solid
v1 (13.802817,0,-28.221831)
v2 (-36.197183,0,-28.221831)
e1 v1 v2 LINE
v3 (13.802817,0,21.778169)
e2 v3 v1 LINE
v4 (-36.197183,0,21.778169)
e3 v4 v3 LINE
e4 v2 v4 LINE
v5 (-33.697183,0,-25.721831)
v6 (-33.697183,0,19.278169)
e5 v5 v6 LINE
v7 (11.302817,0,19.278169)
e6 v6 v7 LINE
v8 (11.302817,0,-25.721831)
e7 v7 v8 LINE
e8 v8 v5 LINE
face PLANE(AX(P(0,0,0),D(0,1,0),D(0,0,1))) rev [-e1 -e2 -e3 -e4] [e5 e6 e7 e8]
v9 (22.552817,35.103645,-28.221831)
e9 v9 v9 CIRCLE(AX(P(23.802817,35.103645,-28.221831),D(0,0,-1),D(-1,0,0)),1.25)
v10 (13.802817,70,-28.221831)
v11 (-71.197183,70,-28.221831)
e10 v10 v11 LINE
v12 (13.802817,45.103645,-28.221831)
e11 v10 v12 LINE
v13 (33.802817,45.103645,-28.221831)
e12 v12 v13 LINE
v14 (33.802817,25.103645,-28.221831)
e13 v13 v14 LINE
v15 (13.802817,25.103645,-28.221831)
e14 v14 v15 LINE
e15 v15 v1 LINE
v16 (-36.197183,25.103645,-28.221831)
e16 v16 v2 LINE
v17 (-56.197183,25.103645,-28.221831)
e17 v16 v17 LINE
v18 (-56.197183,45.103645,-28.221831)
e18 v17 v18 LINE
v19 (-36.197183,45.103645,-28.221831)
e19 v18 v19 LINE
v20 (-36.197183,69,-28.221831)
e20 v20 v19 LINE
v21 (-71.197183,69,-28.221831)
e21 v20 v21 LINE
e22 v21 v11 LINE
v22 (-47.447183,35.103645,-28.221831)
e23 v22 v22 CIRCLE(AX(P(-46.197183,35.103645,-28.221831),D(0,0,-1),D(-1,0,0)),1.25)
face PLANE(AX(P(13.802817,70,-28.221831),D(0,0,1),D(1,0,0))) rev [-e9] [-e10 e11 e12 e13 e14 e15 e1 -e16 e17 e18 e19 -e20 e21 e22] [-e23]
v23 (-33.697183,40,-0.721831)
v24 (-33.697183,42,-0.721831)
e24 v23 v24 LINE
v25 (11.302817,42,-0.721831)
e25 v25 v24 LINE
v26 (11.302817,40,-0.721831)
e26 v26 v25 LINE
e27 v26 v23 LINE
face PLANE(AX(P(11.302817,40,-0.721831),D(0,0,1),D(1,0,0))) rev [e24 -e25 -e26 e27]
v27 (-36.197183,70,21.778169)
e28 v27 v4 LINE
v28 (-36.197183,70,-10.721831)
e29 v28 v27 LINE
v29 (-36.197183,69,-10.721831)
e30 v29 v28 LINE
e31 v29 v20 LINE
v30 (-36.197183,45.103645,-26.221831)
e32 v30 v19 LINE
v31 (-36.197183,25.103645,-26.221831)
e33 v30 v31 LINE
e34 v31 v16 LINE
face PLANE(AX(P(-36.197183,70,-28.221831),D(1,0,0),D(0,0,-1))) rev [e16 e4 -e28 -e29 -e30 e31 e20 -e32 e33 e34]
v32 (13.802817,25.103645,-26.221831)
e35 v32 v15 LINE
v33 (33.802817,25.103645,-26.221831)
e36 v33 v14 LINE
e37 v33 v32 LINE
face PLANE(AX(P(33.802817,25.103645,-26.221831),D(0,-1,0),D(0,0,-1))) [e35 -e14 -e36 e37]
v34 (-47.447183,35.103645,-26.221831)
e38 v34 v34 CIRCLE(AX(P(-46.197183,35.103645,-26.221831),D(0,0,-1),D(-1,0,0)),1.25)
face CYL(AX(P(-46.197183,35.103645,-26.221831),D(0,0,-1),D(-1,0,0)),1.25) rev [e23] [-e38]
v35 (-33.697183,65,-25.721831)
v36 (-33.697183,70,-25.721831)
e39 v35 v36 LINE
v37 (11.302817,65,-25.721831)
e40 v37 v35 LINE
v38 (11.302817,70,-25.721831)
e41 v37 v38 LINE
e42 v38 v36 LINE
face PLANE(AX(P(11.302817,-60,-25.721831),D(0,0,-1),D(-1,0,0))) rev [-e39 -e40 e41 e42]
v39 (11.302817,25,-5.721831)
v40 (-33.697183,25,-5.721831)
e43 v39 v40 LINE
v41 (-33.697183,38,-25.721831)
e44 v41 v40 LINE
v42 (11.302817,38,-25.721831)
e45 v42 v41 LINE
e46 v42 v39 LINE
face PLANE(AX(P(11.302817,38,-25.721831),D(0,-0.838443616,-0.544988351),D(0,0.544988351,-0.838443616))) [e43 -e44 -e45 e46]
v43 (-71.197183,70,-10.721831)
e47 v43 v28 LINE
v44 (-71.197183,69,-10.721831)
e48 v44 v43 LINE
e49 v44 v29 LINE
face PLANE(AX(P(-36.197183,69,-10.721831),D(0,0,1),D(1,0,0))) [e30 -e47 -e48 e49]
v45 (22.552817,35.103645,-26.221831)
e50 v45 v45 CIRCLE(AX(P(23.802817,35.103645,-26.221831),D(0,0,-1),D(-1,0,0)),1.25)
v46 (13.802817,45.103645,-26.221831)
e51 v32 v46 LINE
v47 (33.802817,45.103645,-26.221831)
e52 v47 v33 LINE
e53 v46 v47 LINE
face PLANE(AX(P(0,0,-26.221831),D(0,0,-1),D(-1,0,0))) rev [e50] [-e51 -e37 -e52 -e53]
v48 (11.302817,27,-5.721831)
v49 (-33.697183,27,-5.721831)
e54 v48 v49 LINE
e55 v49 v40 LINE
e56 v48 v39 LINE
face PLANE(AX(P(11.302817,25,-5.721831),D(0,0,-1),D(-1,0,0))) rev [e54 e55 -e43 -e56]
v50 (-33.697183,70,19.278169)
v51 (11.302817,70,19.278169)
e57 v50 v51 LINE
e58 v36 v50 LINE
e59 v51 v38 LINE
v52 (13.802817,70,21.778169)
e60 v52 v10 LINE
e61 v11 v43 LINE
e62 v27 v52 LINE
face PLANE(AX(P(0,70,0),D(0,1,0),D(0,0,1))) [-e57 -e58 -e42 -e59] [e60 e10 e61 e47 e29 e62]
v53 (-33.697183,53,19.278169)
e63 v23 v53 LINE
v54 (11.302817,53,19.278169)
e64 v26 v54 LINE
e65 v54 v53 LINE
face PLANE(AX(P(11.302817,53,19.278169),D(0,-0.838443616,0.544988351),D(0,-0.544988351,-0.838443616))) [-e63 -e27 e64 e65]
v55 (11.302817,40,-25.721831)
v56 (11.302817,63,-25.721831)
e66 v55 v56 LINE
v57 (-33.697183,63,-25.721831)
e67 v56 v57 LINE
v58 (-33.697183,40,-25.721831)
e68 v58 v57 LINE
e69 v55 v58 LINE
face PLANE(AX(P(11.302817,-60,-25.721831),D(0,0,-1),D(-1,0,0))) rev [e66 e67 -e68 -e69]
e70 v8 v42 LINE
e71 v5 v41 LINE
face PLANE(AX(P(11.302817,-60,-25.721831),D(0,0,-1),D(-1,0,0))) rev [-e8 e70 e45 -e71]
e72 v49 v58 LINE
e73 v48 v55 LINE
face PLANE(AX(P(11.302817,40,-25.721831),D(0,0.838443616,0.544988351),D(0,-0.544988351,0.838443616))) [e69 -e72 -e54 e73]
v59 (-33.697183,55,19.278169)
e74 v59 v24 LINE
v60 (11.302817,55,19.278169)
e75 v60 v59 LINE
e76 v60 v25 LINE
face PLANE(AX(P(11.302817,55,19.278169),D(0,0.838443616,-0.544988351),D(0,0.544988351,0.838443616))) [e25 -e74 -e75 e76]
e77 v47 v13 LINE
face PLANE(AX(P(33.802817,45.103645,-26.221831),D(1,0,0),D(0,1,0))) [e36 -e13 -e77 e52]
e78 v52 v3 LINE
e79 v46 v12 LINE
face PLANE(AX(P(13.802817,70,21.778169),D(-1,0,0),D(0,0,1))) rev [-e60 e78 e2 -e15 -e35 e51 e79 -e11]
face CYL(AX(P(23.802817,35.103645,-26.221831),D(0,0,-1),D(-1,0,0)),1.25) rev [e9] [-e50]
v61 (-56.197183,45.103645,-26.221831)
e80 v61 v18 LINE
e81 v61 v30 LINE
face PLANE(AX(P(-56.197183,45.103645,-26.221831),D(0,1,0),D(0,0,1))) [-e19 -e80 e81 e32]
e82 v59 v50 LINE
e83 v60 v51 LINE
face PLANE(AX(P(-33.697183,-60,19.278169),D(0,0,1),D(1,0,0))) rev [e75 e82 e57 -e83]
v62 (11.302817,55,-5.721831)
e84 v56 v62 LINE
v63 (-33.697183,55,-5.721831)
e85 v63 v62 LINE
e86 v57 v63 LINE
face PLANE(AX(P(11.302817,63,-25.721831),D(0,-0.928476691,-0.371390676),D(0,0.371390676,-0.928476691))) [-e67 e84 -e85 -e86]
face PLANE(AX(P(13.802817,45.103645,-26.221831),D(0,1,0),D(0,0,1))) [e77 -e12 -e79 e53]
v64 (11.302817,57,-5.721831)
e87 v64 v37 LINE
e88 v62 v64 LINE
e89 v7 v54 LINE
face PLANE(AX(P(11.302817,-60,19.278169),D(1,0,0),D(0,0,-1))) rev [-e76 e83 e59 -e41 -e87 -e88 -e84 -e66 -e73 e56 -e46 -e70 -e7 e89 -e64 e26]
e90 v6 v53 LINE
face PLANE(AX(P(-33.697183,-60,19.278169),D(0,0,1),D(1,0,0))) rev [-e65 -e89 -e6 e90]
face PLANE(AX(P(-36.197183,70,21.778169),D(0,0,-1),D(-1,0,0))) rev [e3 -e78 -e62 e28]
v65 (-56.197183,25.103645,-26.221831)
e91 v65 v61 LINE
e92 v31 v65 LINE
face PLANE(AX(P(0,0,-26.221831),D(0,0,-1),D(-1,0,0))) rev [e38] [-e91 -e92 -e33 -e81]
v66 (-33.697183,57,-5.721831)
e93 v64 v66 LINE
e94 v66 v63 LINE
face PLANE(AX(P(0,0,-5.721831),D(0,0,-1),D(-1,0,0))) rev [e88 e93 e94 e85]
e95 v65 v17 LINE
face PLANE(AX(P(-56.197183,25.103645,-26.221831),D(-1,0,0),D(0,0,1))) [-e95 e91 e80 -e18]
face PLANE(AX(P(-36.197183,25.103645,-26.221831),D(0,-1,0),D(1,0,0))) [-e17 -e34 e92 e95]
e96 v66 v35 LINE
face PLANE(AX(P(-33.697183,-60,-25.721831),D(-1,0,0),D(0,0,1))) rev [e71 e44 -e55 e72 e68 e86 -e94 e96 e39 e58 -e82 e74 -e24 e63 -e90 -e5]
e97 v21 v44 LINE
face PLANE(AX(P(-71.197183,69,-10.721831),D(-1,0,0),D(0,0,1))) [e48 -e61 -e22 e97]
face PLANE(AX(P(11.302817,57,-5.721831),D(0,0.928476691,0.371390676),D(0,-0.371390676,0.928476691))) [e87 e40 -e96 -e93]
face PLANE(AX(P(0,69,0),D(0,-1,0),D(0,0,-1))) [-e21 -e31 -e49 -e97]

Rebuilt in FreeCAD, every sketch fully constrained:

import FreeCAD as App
import Part
import Sketcher


def add_polygon(sketch, points):
    """Adds a closed chain of lines whose ends are joined by coincident constraints."""
    first, n = sketch.GeometryCount, len(points)
    for a, b in zip(points, points[1:] + points[:1]):
        sketch.addGeometry(Part.LineSegment(App.Vector(*a, 0), App.Vector(*b, 0)), False)
    for i in range(n):
        sketch.addConstraint(Sketcher.Constraint("Coincident", first + i, 2, first + (i + 1) % n, 1))

doc = App.newDocument("Part")
body = doc.addObject("PartDesign::Body", "Body")

sketch1 = doc.addObject("Sketcher::SketchObject", "Sketch")
body.addObject(sketch1)
sketch1.AttachmentSupport = (doc.XZ_Plane, [""])
sketch1.MapMode = "FlatFace"
add_polygon(sketch1, [(-36.197183, -28.221831), (-36.197183, 21.778169), (13.802817, 21.778169), (13.802817, -28.221831)])
sketch1.addConstraint(Sketcher.Constraint("Vertical", 0))
sketch1.addConstraint(Sketcher.Constraint("Horizontal", 1))
sketch1.addConstraint(Sketcher.Constraint("Vertical", 2))
sketch1.addConstraint(Sketcher.Constraint("Horizontal", 3))
sketch1.addConstraint(Sketcher.Constraint("Equal", 3, 0))
sketch1.addConstraint(Sketcher.Constraint("DistanceX", 1, 1, 1, 2, 50.0))
sketch1.addConstraint(Sketcher.Constraint("DistanceY", -1, 1, 0, 2, 21.778169))
sketch1.addConstraint(Sketcher.Constraint("DistanceX", 0, 2, -1, 1, 36.197183))
pad1 = doc.addObject("PartDesign::Pad", "Pad")
body.addObject(pad1)
pad1.Profile = sketch1
pad1.Length = 70
pad1.Reversed = True

sketch2 = doc.addObject("Sketcher::SketchObject", "Sketch001")
body.addObject(sketch2)
sketch2.AttachmentSupport = (doc.XZ_Plane, [""])
sketch2.MapMode = "FlatFace"
sketch2.AttachmentOffset = App.Placement(App.Vector(0, 0, -70), App.Rotation())
add_polygon(sketch2, [(-33.697183, -25.721831), (-33.697183, 19.278169), (11.302817, 19.278169), (11.302817, -25.721831)])
sketch2.addConstraint(Sketcher.Constraint("Vertical", 0))
sketch2.addConstraint(Sketcher.Constraint("Horizontal", 1))
sketch2.addConstraint(Sketcher.Constraint("Vertical", 2))
sketch2.addConstraint(Sketcher.Constraint("Horizontal", 3))
sketch2.addConstraint(Sketcher.Constraint("Equal", 3, 0))
sketch2.addConstraint(Sketcher.Constraint("DistanceX", 1, 1, 1, 2, 45.0))
sketch2.addConstraint(Sketcher.Constraint("DistanceY", -1, 1, 0, 2, 19.278169))
sketch2.addConstraint(Sketcher.Constraint("DistanceX", 0, 2, -1, 1, 33.697183))
pocket1 = doc.addObject("PartDesign::Pocket", "Pocket")
body.addObject(pocket1)
pocket1.Profile = sketch2
pocket1.Length = 130
pocket1.Reversed = True

sketch3 = doc.addObject("Sketcher::SketchObject", "Sketch002")
body.addObject(sketch3)
sketch3.AttachmentSupport = (doc.XY_Plane, [""])
sketch3.MapMode = "FlatFace"
sketch3.AttachmentOffset = App.Placement(App.Vector(0, 0, -25.721831), App.Rotation())
add_polygon(sketch3, [(-33.697183, 65), (-33.697183, 55), (11.302817, 55), (11.302817, 65)])
sketch3.addConstraint(Sketcher.Constraint("Vertical", 0))
sketch3.addConstraint(Sketcher.Constraint("Horizontal", 1))
sketch3.addConstraint(Sketcher.Constraint("Vertical", 2))
sketch3.addConstraint(Sketcher.Constraint("Horizontal", 3))
sketch3.addConstraint(Sketcher.Constraint("DistanceX", 1, 1, 1, 2, 45.0))
sketch3.addConstraint(Sketcher.Constraint("DistanceY", 0, 2, 0, 1, 10.0))
sketch3.addConstraint(Sketcher.Constraint("DistanceY", -1, 1, 0, 2, 55.0))
sketch3.addConstraint(Sketcher.Constraint("DistanceX", 0, 2, -1, 1, 33.697183))
pad2 = doc.addObject("PartDesign::Pad", "Pad001")
body.addObject(pad2)
pad2.Profile = sketch3
pad2.Length = 20

sketch4 = doc.addObject("Sketcher::SketchObject", "Sketch003")
body.addObject(sketch4)
sketch4.AttachmentSupport = (doc.YZ_Plane, [""])
sketch4.MapMode = "FlatFace"
sketch4.AttachmentOffset = App.Placement(App.Vector(0, 0, -33.697183), App.Rotation())
add_polygon(sketch4, [(65, -25.721831), (65, -5.721831), (57, -5.721831)])
add_polygon(sketch4, [(55, -25.721831), (63, -25.721831), (55, -5.721831)])
sketch4.addConstraint(Sketcher.Constraint("Vertical", 0))
sketch4.addConstraint(Sketcher.Constraint("Horizontal", 1))
sketch4.addConstraint(Sketcher.Constraint("Horizontal", 3))
sketch4.addConstraint(Sketcher.Constraint("Vertical", 5))
sketch4.addConstraint(Sketcher.Constraint("Parallel", 2, 4))
sketch4.addConstraint(Sketcher.Constraint("Horizontal", 2, 2, 3, 2))
sketch4.addConstraint(Sketcher.Constraint("Horizontal", 1, 2, 4, 2))
sketch4.addConstraint(Sketcher.Constraint("DistanceX", 1, 2, 1, 1, 8.0))
sketch4.addConstraint(Sketcher.Constraint("DistanceY", 0, 1, 0, 2, 20.0))
sketch4.addConstraint(Sketcher.Constraint("DistanceX", -1, 1, 0, 2, 65.0))
sketch4.addConstraint(Sketcher.Constraint("DistanceX", -1, 1, 3, 2, 63.0))
sketch4.addConstraint(Sketcher.Constraint("DistanceY", 0, 2, -1, 1, 5.721831))
pocket2 = doc.addObject("PartDesign::Pocket", "Pocket001")
body.addObject(pocket2)
pocket2.Profile = sketch4
pocket2.Length = 45
pocket2.Reversed = True

sketch5 = doc.addObject("Sketcher::SketchObject", "Sketch004")
body.addObject(sketch5)
sketch5.AttachmentSupport = (doc.YZ_Plane, [""])
sketch5.MapMode = "FlatFace"
sketch5.AttachmentOffset = App.Placement(App.Vector(0, 0, -33.697183), App.Rotation())
add_polygon(sketch5, [(55, 19.278169), (40, 19.278169), (40, -0.721831), (55, -0.721831)])
sketch5.addConstraint(Sketcher.Constraint("Horizontal", 0))
sketch5.addConstraint(Sketcher.Constraint("Vertical", 1))
sketch5.addConstraint(Sketcher.Constraint("Horizontal", 2))
sketch5.addConstraint(Sketcher.Constraint("Vertical", 3))
sketch5.addConstraint(Sketcher.Constraint("DistanceX", 0, 2, 0, 1, 15.0))
sketch5.addConstraint(Sketcher.Constraint("DistanceY", 1, 2, 1, 1, 20.0))
sketch5.addConstraint(Sketcher.Constraint("DistanceX", -1, 1, 0, 2, 40.0))
sketch5.addConstraint(Sketcher.Constraint("DistanceY", -1, 1, 0, 2, 19.278169))
pad3 = doc.addObject("PartDesign::Pad", "Pad002")
body.addObject(pad3)
pad3.Profile = sketch5
pad3.Length = 45

sketch6 = doc.addObject("Sketcher::SketchObject", "Sketch005")
body.addObject(sketch6)
sketch6.AttachmentSupport = (doc.YZ_Plane, [""])
sketch6.MapMode = "FlatFace"
sketch6.AttachmentOffset = App.Placement(App.Vector(0, 0, -33.697183), App.Rotation())
add_polygon(sketch6, [(42, -0.721831), (55, -0.721831), (55, 19.278169)])
add_polygon(sketch6, [(40, 19.278169), (40, -0.721831), (53, 19.278169)])
sketch6.addConstraint(Sketcher.Constraint("Horizontal", 0))
sketch6.addConstraint(Sketcher.Constraint("Vertical", 1))
sketch6.addConstraint(Sketcher.Constraint("Vertical", 3))
sketch6.addConstraint(Sketcher.Constraint("Horizontal", 5))
sketch6.addConstraint(Sketcher.Constraint("Parallel", 2, 4))
sketch6.addConstraint(Sketcher.Constraint("Horizontal", 2, 2, 3, 2))
sketch6.addConstraint(Sketcher.Constraint("Horizontal", 1, 2, 4, 2))
sketch6.addConstraint(Sketcher.Constraint("DistanceX", 0, 1, 0, 2, 13.0))
sketch6.addConstraint(Sketcher.Constraint("DistanceY", 1, 1, 1, 2, 20.0))
sketch6.addConstraint(Sketcher.Constraint("DistanceX", -1, 1, 0, 2, 55.0))
sketch6.addConstraint(Sketcher.Constraint("DistanceX", -1, 1, 3, 2, 40.0))
sketch6.addConstraint(Sketcher.Constraint("DistanceY", 0, 2, -1, 1, 0.721831))
pocket3 = doc.addObject("PartDesign::Pocket", "Pocket002")
body.addObject(pocket3)
pocket3.Profile = sketch6
pocket3.Length = 45
pocket3.Reversed = True

sketch7 = doc.addObject("Sketcher::SketchObject", "Sketch006")
body.addObject(sketch7)
sketch7.AttachmentSupport = (doc.YZ_Plane, [""])
sketch7.MapMode = "FlatFace"
sketch7.AttachmentOffset = App.Placement(App.Vector(0, 0, -33.697183), App.Rotation())
add_polygon(sketch7, [(40, -5.721831), (25, -5.721831), (25, -25.721831), (40, -25.721831)])
sketch7.addConstraint(Sketcher.Constraint("Horizontal", 0))
sketch7.addConstraint(Sketcher.Constraint("Vertical", 1))
sketch7.addConstraint(Sketcher.Constraint("Horizontal", 2))
sketch7.addConstraint(Sketcher.Constraint("Vertical", 3))
sketch7.addConstraint(Sketcher.Constraint("DistanceX", 0, 2, 0, 1, 15.0))
sketch7.addConstraint(Sketcher.Constraint("DistanceY", 1, 2, 1, 1, 20.0))
sketch7.addConstraint(Sketcher.Constraint("DistanceX", -1, 1, 0, 2, 25.0))
sketch7.addConstraint(Sketcher.Constraint("DistanceY", 0, 2, -1, 1, 5.721831))
pad4 = doc.addObject("PartDesign::Pad", "Pad003")
body.addObject(pad4)
pad4.Profile = sketch7
pad4.Length = 45

sketch8 = doc.addObject("Sketcher::SketchObject", "Sketch007")
body.addObject(sketch8)
sketch8.AttachmentSupport = (doc.YZ_Plane, [""])
sketch8.MapMode = "FlatFace"
sketch8.AttachmentOffset = App.Placement(App.Vector(0, 0, -33.697183), App.Rotation())
add_polygon(sketch8, [(40, -5.721831), (27, -5.721831), (40, -25.721831)])
add_polygon(sketch8, [(25, -5.721831), (25, -25.721831), (38, -25.721831)])
sketch8.addConstraint(Sketcher.Constraint("Horizontal", 0))
sketch8.addConstraint(Sketcher.Constraint("Vertical", 2))
sketch8.addConstraint(Sketcher.Constraint("Vertical", 3))
sketch8.addConstraint(Sketcher.Constraint("Horizontal", 4))
sketch8.addConstraint(Sketcher.Constraint("Parallel", 1, 5))
sketch8.addConstraint(Sketcher.Constraint("Horizontal", 1, 2, 3, 2))
sketch8.addConstraint(Sketcher.Constraint("Horizontal", 2, 2, 5, 2))
sketch8.addConstraint(Sketcher.Constraint("DistanceX", 0, 2, 0, 1, 13.0))
sketch8.addConstraint(Sketcher.Constraint("DistanceY", 2, 1, 2, 2, 20.0))
sketch8.addConstraint(Sketcher.Constraint("DistanceX", -1, 1, 0, 2, 27.0))
sketch8.addConstraint(Sketcher.Constraint("DistanceX", -1, 1, 3, 2, 25.0))
sketch8.addConstraint(Sketcher.Constraint("DistanceY", 0, 2, -1, 1, 5.721831))
pocket4 = doc.addObject("PartDesign::Pocket", "Pocket003")
body.addObject(pocket4)
pocket4.Profile = sketch8
pocket4.Length = 45
pocket4.Reversed = True

sketch9 = doc.addObject("Sketcher::SketchObject", "Sketch008")
body.addObject(sketch9)
sketch9.AttachmentSupport = (doc.XZ_Plane, [""])
sketch9.MapMode = "FlatFace"
sketch9.AttachmentOffset = App.Placement(App.Vector(0, 0, -70), App.Rotation())
add_polygon(sketch9, [(-71.197183, -28.221831), (-71.197183, -10.721831), (-36.197183, -10.721831), (-36.197183, -28.221831)])
sketch9.addConstraint(Sketcher.Constraint("Vertical", 0))
sketch9.addConstraint(Sketcher.Constraint("Horizontal", 1))
sketch9.addConstraint(Sketcher.Constraint("Vertical", 2))
sketch9.addConstraint(Sketcher.Constraint("Horizontal", 3))
sketch9.addConstraint(Sketcher.Constraint("DistanceX", 1, 1, 1, 2, 35.0))
sketch9.addConstraint(Sketcher.Constraint("DistanceY", 0, 1, 0, 2, 17.5))
sketch9.addConstraint(Sketcher.Constraint("DistanceY", 0, 2, -1, 1, 10.721831))
sketch9.addConstraint(Sketcher.Constraint("DistanceX", 0, 2, -1, 1, 71.197183))
pad5 = doc.addObject("PartDesign::Pad", "Pad004")
body.addObject(pad5)
pad5.Profile = sketch9
pad5.Length = 1

sketch10 = doc.addObject("Sketcher::SketchObject", "Sketch009")
body.addObject(sketch10)
sketch10.AttachmentSupport = (doc.XY_Plane, [""])
sketch10.MapMode = "FlatFace"
sketch10.AttachmentOffset = App.Placement(App.Vector(0, 0, -28.221831), App.Rotation())
add_polygon(sketch10, [(33.802817, 45.103645), (33.802817, 25.103645), (13.802817, 25.103645), (13.802817, 45.103645)])
sketch10.addGeometry(Part.Circle(App.Vector(23.802817, 35.103645, 0), App.Vector(0, 0, 1), 1.25), False)
add_polygon(sketch10, [(-36.197183, 45.103645), (-36.197183, 25.103645), (-56.197183, 25.103645), (-56.197183, 45.103645)])
sketch10.addGeometry(Part.Circle(App.Vector(-46.197183, 35.103645, 0), App.Vector(0, 0, 1), 1.25), False)
sketch10.addConstraint(Sketcher.Constraint("Vertical", 0))
sketch10.addConstraint(Sketcher.Constraint("Horizontal", 1))
sketch10.addConstraint(Sketcher.Constraint("Vertical", 2))
sketch10.addConstraint(Sketcher.Constraint("Horizontal", 3))
sketch10.addConstraint(Sketcher.Constraint("Vertical", 5))
sketch10.addConstraint(Sketcher.Constraint("Horizontal", 6))
sketch10.addConstraint(Sketcher.Constraint("Vertical", 7))
sketch10.addConstraint(Sketcher.Constraint("Horizontal", 8))
sketch10.addConstraint(Sketcher.Constraint("Equal", 4, 9))
sketch10.addConstraint(Sketcher.Constraint("Horizontal", 4, 3, 9, 3))
sketch10.addConstraint(Sketcher.Constraint("Horizontal", 1, 2, 5, 2))
sketch10.addConstraint(Sketcher.Constraint("Horizontal", 3, 2, 7, 2))
sketch10.addConstraint(Sketcher.Constraint("Equal", 3, 6))
sketch10.addConstraint(Sketcher.Constraint("Equal", 8, 0))
sketch10.addConstraint(Sketcher.Constraint("Diameter", 4, 2.5))
sketch10.addConstraint(Sketcher.Constraint("DistanceX", 1, 2, 1, 1, 20.0))
sketch10.addConstraint(Sketcher.Constraint("DistanceX", 9, 3, 4, 3, 70.0))
sketch10.addConstraint(Sketcher.Constraint("DistanceX", 4, 3, 0, 2, 10.0))
sketch10.addConstraint(Sketcher.Constraint("DistanceY", 0, 2, 4, 3, 10.0))
sketch10.addConstraint(Sketcher.Constraint("DistanceX", 9, 3, 5, 2, 10.0))
sketch10.addConstraint(Sketcher.Constraint("DistanceX", -1, 1, 4, 3, 23.802817))
sketch10.addConstraint(Sketcher.Constraint("DistanceY", -1, 1, 4, 3, 35.103645))
pad6 = doc.addObject("PartDesign::Pad", "Pad005")
body.addObject(pad6)
pad6.Profile = sketch10
pad6.Length = 2

doc.recompute()
